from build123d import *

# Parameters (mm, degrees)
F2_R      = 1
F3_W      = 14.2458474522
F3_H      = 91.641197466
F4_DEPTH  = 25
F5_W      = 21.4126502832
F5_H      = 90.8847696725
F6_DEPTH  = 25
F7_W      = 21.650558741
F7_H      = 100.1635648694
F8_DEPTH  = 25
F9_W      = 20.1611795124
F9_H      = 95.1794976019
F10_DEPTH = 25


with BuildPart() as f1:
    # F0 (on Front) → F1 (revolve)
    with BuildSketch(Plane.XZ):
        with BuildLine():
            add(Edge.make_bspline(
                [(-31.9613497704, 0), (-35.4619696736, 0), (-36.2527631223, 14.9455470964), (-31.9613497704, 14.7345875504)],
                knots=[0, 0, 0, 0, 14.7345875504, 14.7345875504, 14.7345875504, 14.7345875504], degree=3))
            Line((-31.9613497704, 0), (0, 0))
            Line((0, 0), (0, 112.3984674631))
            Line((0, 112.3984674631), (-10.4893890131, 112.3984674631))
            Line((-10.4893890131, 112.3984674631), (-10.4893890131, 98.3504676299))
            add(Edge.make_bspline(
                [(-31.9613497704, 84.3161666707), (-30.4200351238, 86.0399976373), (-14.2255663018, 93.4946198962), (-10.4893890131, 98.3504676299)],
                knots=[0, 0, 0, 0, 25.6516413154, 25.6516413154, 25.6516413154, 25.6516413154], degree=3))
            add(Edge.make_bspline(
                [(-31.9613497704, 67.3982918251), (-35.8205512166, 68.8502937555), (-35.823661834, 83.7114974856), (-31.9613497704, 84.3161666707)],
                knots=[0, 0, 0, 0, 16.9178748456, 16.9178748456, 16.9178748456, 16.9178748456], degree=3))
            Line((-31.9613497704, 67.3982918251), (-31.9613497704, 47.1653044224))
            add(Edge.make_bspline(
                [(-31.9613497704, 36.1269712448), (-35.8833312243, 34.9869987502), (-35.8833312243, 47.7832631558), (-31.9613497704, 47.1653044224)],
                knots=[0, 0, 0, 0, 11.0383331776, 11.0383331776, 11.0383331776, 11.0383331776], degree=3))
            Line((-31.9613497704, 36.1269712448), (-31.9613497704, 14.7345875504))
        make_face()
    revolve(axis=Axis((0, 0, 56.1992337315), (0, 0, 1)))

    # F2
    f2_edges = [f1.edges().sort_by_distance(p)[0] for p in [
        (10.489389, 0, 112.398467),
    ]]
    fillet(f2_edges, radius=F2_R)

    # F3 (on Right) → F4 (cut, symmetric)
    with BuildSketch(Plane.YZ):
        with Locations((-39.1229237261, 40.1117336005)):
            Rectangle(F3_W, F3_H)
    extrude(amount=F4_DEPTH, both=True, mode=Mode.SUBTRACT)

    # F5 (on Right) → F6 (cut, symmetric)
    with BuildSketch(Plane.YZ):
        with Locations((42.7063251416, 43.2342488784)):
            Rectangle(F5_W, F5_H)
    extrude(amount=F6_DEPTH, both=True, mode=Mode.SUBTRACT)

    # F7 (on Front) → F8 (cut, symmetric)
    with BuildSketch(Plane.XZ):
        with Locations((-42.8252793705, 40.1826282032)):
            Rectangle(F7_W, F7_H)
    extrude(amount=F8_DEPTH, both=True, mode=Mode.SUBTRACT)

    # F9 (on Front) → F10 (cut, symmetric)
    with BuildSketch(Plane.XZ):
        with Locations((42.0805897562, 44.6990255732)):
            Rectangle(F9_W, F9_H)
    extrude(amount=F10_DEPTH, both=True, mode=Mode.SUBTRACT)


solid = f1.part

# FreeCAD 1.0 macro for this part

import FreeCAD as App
import Part
import Sketcher
from FreeCAD import Vector
Q = App.Units.Quantity


def edges_at(feature, points):
    """Names of the edges that pass closest to the given points."""
    edges = feature.Shape.Edges
    near = lambda p: min(range(len(edges)), key=lambda i: edges[i].distToShape(Part.Vertex(*p))[0])
    return sorted({f"Edge{near(p) + 1}" for p in points})

doc = App.newDocument("Part")
body = doc.addObject("PartDesign::Body", "Body")

# Sketch on XZ plane
sketch1 = body.newObject("Sketcher::SketchObject", "Sketch")
sketch1.AttachmentSupport = (doc.getObject("XZ_Plane"), [""])
sketch1.MapMode = "FlatFace"
sketch1.addGeometry([
    Part.BSplineCurve([Vector(-31.96135, 0, 0), Vector(-35.46197, 0, 0), Vector(-36.252763, 14.945547, 0), Vector(-31.96135, 14.734588, 0)], [4, 4], [0, 14.73458755], False, 3, [1, 1, 1, 1], False),  # 0
    Part.LineSegment(Vector(-31.96135, 0, 0), Vector(0, 0, 0)),  # 1
    Part.LineSegment(Vector(0, 0, 0), Vector(0, 112.398467, 0)),  # 2
    Part.LineSegment(Vector(0, 112.398467, 0), Vector(-10.489389, 112.398467, 0)),  # 3
    Part.LineSegment(Vector(-10.489389, 112.398467, 0), Vector(-10.489389, 98.350468, 0)),  # 4
    Part.BSplineCurve([Vector(-31.96135, 84.316167, 0), Vector(-30.420035, 86.039998, 0), Vector(-14.225566, 93.49462, 0), Vector(-10.489389, 98.350468, 0)], [4, 4], [0, 25.651641315], False, 3, [1, 1, 1, 1], False),  # 5
    Part.BSplineCurve([Vector(-31.96135, 67.398292, 0), Vector(-35.820551, 68.850294, 0), Vector(-35.823662, 83.711497, 0), Vector(-31.96135, 84.316167, 0)], [4, 4], [0, 16.917874846], False, 3, [1, 1, 1, 1], False),  # 6
    Part.LineSegment(Vector(-31.96135, 67.398292, 0), Vector(-31.96135, 47.165304, 0)),  # 7
    Part.BSplineCurve([Vector(-31.96135, 36.126971, 0), Vector(-35.883331, 34.986999, 0), Vector(-35.883331, 47.783263, 0), Vector(-31.96135, 47.165304, 0)], [4, 4], [0, 11.038333178], False, 3, [1, 1, 1, 1], False),  # 8
    Part.LineSegment(Vector(-31.96135, 36.126971, 0), Vector(-31.96135, 14.734588, 0)),  # 9
], False)
sketch1.addConstraint([
    Sketcher.Constraint("Block", 0),
    Sketcher.Constraint("Block", 5),
    Sketcher.Constraint("Block", 6),
    Sketcher.Constraint("Block", 8),
    Sketcher.Constraint("Coincident", 0, 1, 1, 1),
    Sketcher.Constraint("Coincident", 1, 2, 2, 1),
    Sketcher.Constraint("Coincident", 2, 2, 3, 1),
    Sketcher.Constraint("Coincident", 3, 2, 4, 1),
    Sketcher.Constraint("Coincident", 4, 2, 5, 2),
    Sketcher.Constraint("Coincident", 6, 1, 7, 1),
    Sketcher.Constraint("Coincident", 7, 2, 8, 2),
    Sketcher.Constraint("Coincident", 8, 1, 9, 1),
    Sketcher.Constraint("Coincident", 9, 2, 0, 2),
    Sketcher.Constraint("Horizontal", 1),
    Sketcher.Constraint("Vertical", 2),
    Sketcher.Constraint("Horizontal", 3),
    Sketcher.Constraint("Vertical", 4),
    Sketcher.Constraint("PointOnObject", 2, 2, -2),
    Sketcher.Constraint("DistanceY", 4, 2, 4, 1, Q("14.048 mm")),
])
revolution = body.newObject("PartDesign::Revolution", "Revolution")
revolution.Profile = sketch1
revolution.ReferenceAxis = (sketch1, ["V_Axis"])
revolution.Angle = 360
doc.recompute()

fillet = body.newObject("PartDesign::Fillet", "Fillet")
fillet.Base = (revolution, edges_at(revolution, [(10.489, 0, 112.398)]))
fillet.Radius = 1

# Sketch on YZ plane
sketch2 = body.newObject("Sketcher::SketchObject", "Sketch001")
sketch2.AttachmentSupport = (doc.getObject("YZ_Plane"), [""])
sketch2.MapMode = "FlatFace"
sketch2.addGeometry([
    Part.LineSegment(Vector(-46, 86, 0), Vector(-46, -6, 0)),
    Part.LineSegment(Vector(-46, -6, 0), Vector(-32, -6, 0)),
    Part.LineSegment(Vector(-32, -6, 0), Vector(-32, 86, 0)),
    Part.LineSegment(Vector(-32, 86, 0), Vector(-46, 86, 0)),
], False)
sketch2.addConstraint([
    Sketcher.Constraint("Coincident", 0, 2, 1, 1),
    Sketcher.Constraint("Coincident", 1, 2, 2, 1),
    Sketcher.Constraint("Coincident", 2, 2, 3, 1),
    Sketcher.Constraint("Coincident", 3, 2, 0, 1),
    Sketcher.Constraint("Vertical", 0),
    Sketcher.Constraint("Horizontal", 1),
    Sketcher.Constraint("Vertical", 2),
    Sketcher.Constraint("Horizontal", 3),
    Sketcher.Constraint("DistanceX", 1, 2, -1, 1, Q("32 mm")),
    Sketcher.Constraint("DistanceX", 1, 1, 1, 2, Q("14.245847 mm")),
    Sketcher.Constraint("DistanceY", 0, 2, 0, 1, Q("91.641197 mm")),
    Sketcher.Constraint("DistanceY", 0, 2, -1, 1, Q("5.708865 mm")),
])
pocket1 = body.newObject("PartDesign::Pocket", "Pocket")
pocket1.Profile = sketch2
pocket1.Length = 50
pocket1.Midplane = True

# Sketch on YZ plane
sketch3 = body.newObject("Sketcher::SketchObject", "Sketch002")
sketch3.AttachmentSupport = (doc.getObject("YZ_Plane"), [""])
sketch3.MapMode = "FlatFace"
sketch3.addGeometry([
    Part.LineSegment(Vector(32, 89, 0), Vector(32, -2, 0)),
    Part.LineSegment(Vector(32, -2, 0), Vector(53, -2, 0)),
    Part.LineSegment(Vector(53, -2, 0), Vector(53, 89, 0)),
    Part.LineSegment(Vector(53, 89, 0), Vector(32, 89, 0)),
], False)
sketch3.addConstraint([
    Sketcher.Constraint("Coincident", 0, 2, 1, 1),
    Sketcher.Constraint("Coincident", 1, 2, 2, 1),
    Sketcher.Constraint("Coincident", 2, 2, 3, 1),
    Sketcher.Constraint("Coincident", 3, 2, 0, 1),
    Sketcher.Constraint("Vertical", 0),
    Sketcher.Constraint("Horizontal", 1),
    Sketcher.Constraint("Vertical", 2),
    Sketcher.Constraint("Horizontal", 3),
    Sketcher.Constraint("DistanceX", -1, 1, 0, 2, Q("32 mm")),
    Sketcher.Constraint("DistanceX", 1, 1, 1, 2, Q("21.41265 mm")),
    Sketcher.Constraint("DistanceY", 0, 2, 0, 1, Q("90.88477 mm")),
    Sketcher.Constraint("DistanceY", 0, 2, -1, 1, Q("2.208136 mm")),
])
pocket2 = body.newObject("PartDesign::Pocket", "Pocket001")
pocket2.Profile = sketch3
pocket2.Length = 50
pocket2.Midplane = True

# Sketch on XZ plane
sketch4 = body.newObject("Sketcher::SketchObject", "Sketch003")
sketch4.AttachmentSupport = (doc.getObject("XZ_Plane"), [""])
sketch4.MapMode = "FlatFace"
sketch4.addGeometry([
    Part.LineSegment(Vector(-54, 90, 0), Vector(-54, -10, 0)),
    Part.LineSegment(Vector(-54, -10, 0), Vector(-32, -10, 0)),
    Part.LineSegment(Vector(-32, -10, 0), Vector(-32, 90, 0)),
    Part.LineSegment(Vector(-32, 90, 0), Vector(-54, 90, 0)),
], False)
sketch4.addConstraint([
    Sketcher.Constraint("Coincident", 0, 2, 1, 1),
    Sketcher.Constraint("Coincident", 1, 2, 2, 1),
    Sketcher.Constraint("Coincident", 2, 2, 3, 1),
    Sketcher.Constraint("Coincident", 3, 2, 0, 1),
    Sketcher.Constraint("Vertical", 0),
    Sketcher.Constraint("Horizontal", 1),
    Sketcher.Constraint("Vertical", 2),
    Sketcher.Constraint("Horizontal", 3),
    Sketcher.Constraint("DistanceX", 1, 2, -1, 1, Q("32 mm")),
    Sketcher.Constraint("DistanceX", 1, 1, 1, 2, Q("21.650559 mm")),
    Sketcher.Constraint("DistanceY", 0, 2, 0, 1, Q("100.163565 mm")),
    Sketcher.Constraint("DistanceY", -1, 1, 2, 2, Q("90.264411 mm")),
])
pocket3 = body.newObject("PartDesign::Pocket", "Pocket002")
pocket3.Profile = sketch4
pocket3.Length = 50
pocket3.Midplane = True

# Sketch on XZ plane
sketch5 = body.newObject("Sketcher::SketchObject", "Sketch004")
sketch5.AttachmentSupport = (doc.getObject("XZ_Plane"), [""])
sketch5.MapMode = "FlatFace"
sketch5.addGeometry([
    Part.LineSegment(Vector(32, 92, 0), Vector(32, -3, 0)),
    Part.LineSegment(Vector(32, -3, 0), Vector(52, -3, 0)),
    Part.LineSegment(Vector(52, -3, 0), Vector(52, 92, 0)),
    Part.LineSegment(Vector(52, 92, 0), Vector(32, 92, 0)),
], False)
sketch5.addConstraint([
    Sketcher.Constraint("Coincident", 0, 2, 1, 1),
    Sketcher.Constraint("Coincident", 1, 2, 2, 1),
    Sketcher.Constraint("Coincident", 2, 2, 3, 1),
    Sketcher.Constraint("Coincident", 3, 2, 0, 1),
    Sketcher.Constraint("Vertical", 0),
    Sketcher.Constraint("Horizontal", 1),
    Sketcher.Constraint("Vertical", 2),
    Sketcher.Constraint("Horizontal", 3),
    Sketcher.Constraint("DistanceX", -1, 1, 0, 2, Q("32 mm")),
    Sketcher.Constraint("DistanceX", 1, 1, 1, 2, Q("20.16118 mm")),
    Sketcher.Constraint("DistanceY", 0, 2, 0, 1, Q("95.179498 mm")),
    Sketcher.Constraint("DistanceY", 0, 2, -1, 1, Q("2.890723 mm")),
])
pocket4 = body.newObject("PartDesign::Pocket", "Pocket003")
pocket4.Profile = sketch5
pocket4.Length = 50
pocket4.Midplane = True

doc.recompute()
